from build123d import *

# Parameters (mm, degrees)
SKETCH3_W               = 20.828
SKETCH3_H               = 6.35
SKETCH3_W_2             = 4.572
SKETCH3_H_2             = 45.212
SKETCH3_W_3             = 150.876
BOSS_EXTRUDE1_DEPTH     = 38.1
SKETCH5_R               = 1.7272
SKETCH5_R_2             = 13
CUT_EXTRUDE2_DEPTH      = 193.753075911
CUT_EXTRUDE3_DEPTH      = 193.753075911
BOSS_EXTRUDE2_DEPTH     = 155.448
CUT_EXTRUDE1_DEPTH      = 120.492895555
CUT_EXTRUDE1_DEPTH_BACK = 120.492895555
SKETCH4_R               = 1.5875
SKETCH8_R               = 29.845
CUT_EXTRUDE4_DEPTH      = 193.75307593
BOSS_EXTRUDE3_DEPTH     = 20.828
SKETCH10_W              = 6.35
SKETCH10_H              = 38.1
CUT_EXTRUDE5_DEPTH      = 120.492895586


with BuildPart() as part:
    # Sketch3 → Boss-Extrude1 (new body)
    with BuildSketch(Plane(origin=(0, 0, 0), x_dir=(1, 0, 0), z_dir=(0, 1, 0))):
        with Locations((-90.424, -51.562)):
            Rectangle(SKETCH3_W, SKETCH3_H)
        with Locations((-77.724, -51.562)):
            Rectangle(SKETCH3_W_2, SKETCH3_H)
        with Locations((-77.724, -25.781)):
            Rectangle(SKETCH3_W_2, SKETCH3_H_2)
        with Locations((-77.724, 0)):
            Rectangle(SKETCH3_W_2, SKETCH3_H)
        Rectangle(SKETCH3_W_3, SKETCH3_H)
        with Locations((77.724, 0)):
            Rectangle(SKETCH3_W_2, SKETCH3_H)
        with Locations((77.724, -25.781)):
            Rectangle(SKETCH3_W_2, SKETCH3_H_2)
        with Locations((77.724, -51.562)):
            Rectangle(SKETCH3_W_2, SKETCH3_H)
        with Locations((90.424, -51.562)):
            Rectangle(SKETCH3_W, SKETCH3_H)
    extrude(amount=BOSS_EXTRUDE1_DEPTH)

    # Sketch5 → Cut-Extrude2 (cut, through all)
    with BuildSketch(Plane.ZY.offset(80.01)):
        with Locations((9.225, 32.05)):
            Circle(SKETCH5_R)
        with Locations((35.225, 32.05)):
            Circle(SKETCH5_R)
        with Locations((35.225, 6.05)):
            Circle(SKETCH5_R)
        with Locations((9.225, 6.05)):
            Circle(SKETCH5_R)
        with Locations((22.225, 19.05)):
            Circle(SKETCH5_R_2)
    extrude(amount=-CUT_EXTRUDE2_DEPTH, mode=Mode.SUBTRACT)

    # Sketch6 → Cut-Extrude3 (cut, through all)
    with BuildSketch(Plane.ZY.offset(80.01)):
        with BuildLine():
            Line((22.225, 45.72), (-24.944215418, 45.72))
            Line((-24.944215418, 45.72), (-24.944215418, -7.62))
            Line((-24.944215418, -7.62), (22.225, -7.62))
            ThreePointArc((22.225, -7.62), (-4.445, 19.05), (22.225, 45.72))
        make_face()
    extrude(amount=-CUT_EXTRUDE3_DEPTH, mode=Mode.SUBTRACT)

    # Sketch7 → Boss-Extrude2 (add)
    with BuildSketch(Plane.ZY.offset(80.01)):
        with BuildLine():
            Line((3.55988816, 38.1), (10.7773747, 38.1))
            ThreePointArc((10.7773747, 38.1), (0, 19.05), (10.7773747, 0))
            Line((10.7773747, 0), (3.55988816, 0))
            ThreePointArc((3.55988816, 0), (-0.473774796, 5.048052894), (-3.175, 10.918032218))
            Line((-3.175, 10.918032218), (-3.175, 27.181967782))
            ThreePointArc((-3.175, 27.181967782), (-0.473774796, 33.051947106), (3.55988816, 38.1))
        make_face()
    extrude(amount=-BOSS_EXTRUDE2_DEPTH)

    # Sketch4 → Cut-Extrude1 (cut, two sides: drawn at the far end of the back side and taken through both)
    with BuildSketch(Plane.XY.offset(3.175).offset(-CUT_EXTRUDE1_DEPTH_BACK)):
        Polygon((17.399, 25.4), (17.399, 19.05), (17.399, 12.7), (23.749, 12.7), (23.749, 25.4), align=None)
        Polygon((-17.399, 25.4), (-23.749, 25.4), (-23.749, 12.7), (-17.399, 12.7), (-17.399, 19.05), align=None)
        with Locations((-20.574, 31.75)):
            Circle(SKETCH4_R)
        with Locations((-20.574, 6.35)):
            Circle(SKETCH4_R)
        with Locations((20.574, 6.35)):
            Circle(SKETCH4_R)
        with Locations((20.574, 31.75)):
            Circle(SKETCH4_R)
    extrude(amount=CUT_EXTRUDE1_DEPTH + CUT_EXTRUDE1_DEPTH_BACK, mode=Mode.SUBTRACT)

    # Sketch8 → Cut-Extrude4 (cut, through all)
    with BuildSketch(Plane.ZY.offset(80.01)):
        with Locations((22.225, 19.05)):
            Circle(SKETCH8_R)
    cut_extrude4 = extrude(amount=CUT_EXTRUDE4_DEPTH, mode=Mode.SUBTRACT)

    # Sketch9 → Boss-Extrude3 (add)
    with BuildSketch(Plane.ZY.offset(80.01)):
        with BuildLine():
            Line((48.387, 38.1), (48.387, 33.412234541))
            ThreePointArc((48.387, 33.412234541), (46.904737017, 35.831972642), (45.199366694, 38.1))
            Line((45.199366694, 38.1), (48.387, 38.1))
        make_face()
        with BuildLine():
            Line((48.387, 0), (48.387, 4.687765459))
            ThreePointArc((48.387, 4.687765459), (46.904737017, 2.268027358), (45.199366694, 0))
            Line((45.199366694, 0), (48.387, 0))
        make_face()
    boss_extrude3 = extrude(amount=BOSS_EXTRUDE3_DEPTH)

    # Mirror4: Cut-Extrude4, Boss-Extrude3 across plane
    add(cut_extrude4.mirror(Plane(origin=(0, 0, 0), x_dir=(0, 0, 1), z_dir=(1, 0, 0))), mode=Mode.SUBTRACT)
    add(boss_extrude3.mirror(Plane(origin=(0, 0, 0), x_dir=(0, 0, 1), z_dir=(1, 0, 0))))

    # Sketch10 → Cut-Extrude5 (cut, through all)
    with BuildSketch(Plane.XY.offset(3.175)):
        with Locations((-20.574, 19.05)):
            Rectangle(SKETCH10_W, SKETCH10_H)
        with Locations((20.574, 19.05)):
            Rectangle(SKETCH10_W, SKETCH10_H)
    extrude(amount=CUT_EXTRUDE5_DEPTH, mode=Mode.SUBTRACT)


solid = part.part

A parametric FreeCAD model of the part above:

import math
import FreeCAD as App
import Part
import Sketcher
Q = App.Units.Quantity


def add_polygon(sketch, points):
    """Adds a closed chain of lines whose ends are joined by coincident constraints."""
    first, n = sketch.GeometryCount, len(points)
    for a, b in zip(points, points[1:] + points[:1]):
        sketch.addGeometry(Part.LineSegment(App.Vector(*a, 0), App.Vector(*b, 0)), False)
    for i in range(n):
        sketch.addConstraint(Sketcher.Constraint("Coincident", first + i, 2, first + (i + 1) % n, 1))

doc = App.newDocument("Part")
body = doc.addObject("PartDesign::Body", "Body")

# Sketch on XZ plane
sketch1 = body.newObject("Sketcher::SketchObject", "Sketch")
sketch1.AttachmentSupport = (doc.getObject("XZ_Plane"), [""])
sketch1.MapMode = "FlatFace"
add_polygon(sketch1, [(-101, 48), (-101, 55), (-75, 55), (-75, 3), (75, 3), (75, 55), (101, 55), (101, 48), (80, 48), (80, -3), (-80, -3), (-80, 48)])  # lines 0-11
sketch1.addConstraint(Sketcher.Constraint("Vertical", 0))
sketch1.addConstraint(Sketcher.Constraint("Horizontal", 1))
sketch1.addConstraint(Sketcher.Constraint("Vertical", 2))
sketch1.addConstraint(Sketcher.Constraint("Horizontal", 3))
sketch1.addConstraint(Sketcher.Constraint("Vertical", 4))
sketch1.addConstraint(Sketcher.Constraint("Horizontal", 5))
sketch1.addConstraint(Sketcher.Constraint("Vertical", 6))
sketch1.addConstraint(Sketcher.Constraint("Horizontal", 7))
sketch1.addConstraint(Sketcher.Constraint("Vertical", 8))
sketch1.addConstraint(Sketcher.Constraint("Horizontal", 9))
sketch1.addConstraint(Sketcher.Constraint("Vertical", 10))
sketch1.addConstraint(Sketcher.Constraint("Horizontal", 11))
sketch1.addConstraint(Sketcher.Constraint("Symmetric", 1, 2, 4, 2, -2))
sketch1.addConstraint(Sketcher.Constraint("Symmetric", 7, 2, 10, 2, -2))
sketch1.addConstraint(Sketcher.Constraint("Equal", 1, 5))
sketch1.addConstraint(Sketcher.Constraint("Equal", 4, 8))
sketch1.addConstraint(Sketcher.Constraint("DistanceX", 1, 1, 1, 2, Q("1 in")))
sketch1.addConstraint(Sketcher.Constraint("DistanceX", 9, 2, 9, 1, Q("6.3 in")))
sketch1.addConstraint(Sketcher.Constraint("DistanceX", 3, 1, 3, 2, Q("5.94 in")))
sketch1.addConstraint(Sketcher.Constraint("DistanceY", 0, 1, 0, 2, Q("0.25 in")))
sketch1.addConstraint(Sketcher.Constraint("DistanceY", 2, 2, 2, 1, Q("2.03 in")))
sketch1.addConstraint(Sketcher.Constraint("DistanceY", -1, 1, 0, 2, Q("2.155 in")))
pad1 = body.newObject("PartDesign::Pad", "Pad")
pad1.Profile = sketch1
pad1.Length = Q("1.5 in")
pad1.Reversed = True

# Sketch on YZ plane
sketch2 = body.newObject("Sketcher::SketchObject", "Sketch001")
sketch2.AttachmentSupport = (doc.getObject("YZ_Plane"), [""])
sketch2.MapMode = "FlatFace"
sketch2.AttachmentOffset = App.Placement(App.Vector(0, 0, -3.15 * 25.4), App.Rotation())
sketch2.addGeometry(Part.Circle(App.Vector(32, 9.2, 0), App.Vector(0, 0, 1), 1.7), False)
sketch2.addGeometry(Part.Circle(App.Vector(32, 35.2, 0), App.Vector(0, 0, 1), 1.7), False)
sketch2.addGeometry(Part.Circle(App.Vector(6, 35.2, 0), App.Vector(0, 0, 1), 1.7), False)
sketch2.addGeometry(Part.Circle(App.Vector(6, 9.2, 0), App.Vector(0, 0, 1), 1.7), False)
sketch2.addGeometry(Part.Circle(App.Vector(19.1, 22.2, 0), App.Vector(0, 0, 1), 13), False)
sketch2.addConstraint(Sketcher.Constraint("Equal", 0, 1))
sketch2.addConstraint(Sketcher.Constraint("Equal", 1, 2))
sketch2.addConstraint(Sketcher.Constraint("Equal", 2, 3))
sketch2.addConstraint(Sketcher.Constraint("Horizontal", 1, 3, 2, 3))
sketch2.addConstraint(Sketcher.Constraint("Horizontal", 0, 3, 3, 3))
sketch2.addConstraint(Sketcher.Constraint("Vertical", 0, 3, 1, 3))
sketch2.addConstraint(Sketcher.Constraint("Vertical", 2, 3, 3, 3))
sketch2.addConstraint(Sketcher.Constraint("Diameter", 0, Q("0.136 in")))
sketch2.addConstraint(Sketcher.Constraint("Diameter", 4, 26.0))
sketch2.addConstraint(Sketcher.Constraint("DistanceX", -1, 1, 4, 3, Q("0.75 in")))
sketch2.addConstraint(Sketcher.Constraint("DistanceY", -1, 1, 4, 3, Q("0.875 in")))
sketch2.addConstraint(Sketcher.Constraint("DistanceX", -1, 1, 0, 3, 32.05))
sketch2.addConstraint(Sketcher.Constraint("DistanceY", -1, 1, 0, 3, 9.225))
sketch2.addConstraint(Sketcher.Constraint("DistanceY", -1, 1, 1, 3, 35.225))
sketch2.addConstraint(Sketcher.Constraint("DistanceX", -1, 1, 2, 3, 6.05))
pocket1 = body.newObject("PartDesign::Pocket", "Pocket")
pocket1.Profile = sketch2
pocket1.Type = "ThroughAll"
pocket1.Reversed = True

# Sketch on YZ plane
sketch3 = body.newObject("Sketcher::SketchObject", "Sketch002")
sketch3.AttachmentSupport = (doc.getObject("YZ_Plane"), [""])
sketch3.MapMode = "FlatFace"
sketch3.AttachmentOffset = App.Placement(App.Vector(0, 0, -3.15 * 25.4), App.Rotation())
sketch3.addGeometry(Part.LineSegment(App.Vector(46, 22, 0), App.Vector(46, -25, 0)), False)
sketch3.addGeometry(Part.LineSegment(App.Vector(46, -25, 0), App.Vector(-8, -25, 0)), False)
sketch3.addGeometry(Part.LineSegment(App.Vector(-8, -25, 0), App.Vector(-8, 22, 0)), False)
sketch3.addGeometry(Part.ArcOfCircle(Part.Circle(App.Vector(19, 22, 0), App.Vector(0, 0, 1), 27), math.radians(180), math.radians(360)), False)
sketch3.addConstraint(Sketcher.Constraint("Coincident", 0, 2, 1, 1))
sketch3.addConstraint(Sketcher.Constraint("Coincident", 1, 2, 2, 1))
sketch3.addConstraint(Sketcher.Constraint("Tangent", 2, 2, 3, 1))
sketch3.addConstraint(Sketcher.Constraint("Tangent", 3, 2, 0, 1))
sketch3.addConstraint(Sketcher.Constraint("Vertical", 0))
sketch3.addConstraint(Sketcher.Constraint("Horizontal", 1))
sketch3.addConstraint(Sketcher.Constraint("Vertical", 2))
sketch3.addConstraint(Sketcher.Constraint("Radius", 3, Q("1.05 in")))
sketch3.addConstraint(Sketcher.Constraint("DistanceX", -1, 1, 0, 2, Q("1.8 in")))
sketch3.addConstraint(Sketcher.Constraint("DistanceY", -1, 1, 3, 3, Q("0.875 in")))
sketch3.addConstraint(Sketcher.Constraint("DistanceY", 0, 2, 0, 1, 47.169215))
pocket2 = body.newObject("PartDesign::Pocket", "Pocket001")
pocket2.Profile = sketch3
pocket2.Type = "ThroughAll"
pocket2.Reversed = True

# Sketch on YZ plane
sketch4 = body.newObject("Sketcher::SketchObject", "Sketch003")
sketch4.AttachmentSupport = (doc.getObject("YZ_Plane"), [""])
sketch4.MapMode = "FlatFace"
sketch4.AttachmentOffset = App.Placement(App.Vector(0, 0, -3.15 * 25.4), App.Rotation())
sketch4.addGeometry(Part.LineSegment(App.Vector(38, 11, 0), App.Vector(38, 4, 0)), False)
sketch4.addGeometry(Part.ArcOfCircle(Part.Circle(App.Vector(19, 22, 0), App.Vector(0, 0, 1), 27), math.radians(-72), math.radians(-44)), False)
sketch4.addGeometry(Part.LineSegment(App.Vector(27, -3, 0), App.Vector(11, -3, 0)), False)
sketch4.addGeometry(Part.ArcOfCircle(Part.Circle(App.Vector(19, 22, 0), App.Vector(0, 0, 1), 27), math.radians(-136), math.radians(-108)), False)
sketch4.addGeometry(Part.LineSegment(App.Vector(0, 4, 0), App.Vector(0, 11, 0)), False)
sketch4.addGeometry(Part.ArcOfCircle(Part.Circle(App.Vector(19, 22, 0), App.Vector(0, 0, 1), 22), math.radians(-149), math.radians(-31)), False)
sketch4.addConstraint(Sketcher.Constraint("Coincident", 0, 2, 1, 2))
sketch4.addConstraint(Sketcher.Constraint("Coincident", 1, 1, 2, 1))
sketch4.addConstraint(Sketcher.Constraint("Coincident", 2, 2, 3, 2))
sketch4.addConstraint(Sketcher.Constraint("Coincident", 3, 1, 4, 1))
sketch4.addConstraint(Sketcher.Constraint("Coincident", 4, 2, 5, 1))
sketch4.addConstraint(Sketcher.Constraint("Coincident", 5, 2, 0, 1))
sketch4.addConstraint(Sketcher.Constraint("Vertical", 0))
sketch4.addConstraint(Sketcher.Constraint("Horizontal", 2))
sketch4.addConstraint(Sketcher.Constraint("Vertical", 4))
sketch4.addConstraint(Sketcher.Constraint("Coincident", 3, 3, 1, 3))
sketch4.addConstraint(Sketcher.Constraint("Coincident", 5, 3, 1, 3))
sketch4.addConstraint(Sketcher.Constraint("Equal", 1, 3))
sketch4.addConstraint(Sketcher.Constraint("PointOnObject", 3, 1, -2))
sketch4.addConstraint(Sketcher.Constraint("Horizontal", 0, 2, 3, 1))
sketch4.addConstraint(Sketcher.Constraint("Radius", 1, Q("1.05 in")))
sketch4.addConstraint(Sketcher.Constraint("Radius", 5, Q("0.875 in")))
sketch4.addConstraint(Sketcher.Constraint("DistanceY", 1, 1, 5, 3, Q("1 in")))
sketch4.addConstraint(Sketcher.Constraint("DistanceX", -1, 1, 0, 2, Q("1.5 in")))
sketch4.addConstraint(Sketcher.Constraint("DistanceY", -1, 1, 1, 3, Q("0.875 in")))
pad2 = body.newObject("PartDesign::Pad", "Pad001")
pad2.Profile = sketch4
pad2.Length = Q("6.12 in")

# Sketch on XY plane
sketch5 = body.newObject("Sketcher::SketchObject", "Sketch004")
sketch5.AttachmentSupport = (doc.getObject("XY_Plane"), [""])
sketch5.MapMode = "FlatFace"
sketch5.AttachmentOffset = App.Placement(App.Vector(0, 0, 0.125 * 25.4), App.Rotation())
add_polygon(sketch5, [(17.4, 25.4), (17.4, 12.7), (23.7, 12.7), (23.7, 25.4)])  # lines 0-3
add_polygon(sketch5, [(-17.4, 25.4), (-23.7, 25.4), (-23.7, 12.7), (-17.4, 12.7)])  # lines 4-7
sketch5.addGeometry(Part.Circle(App.Vector(-20.6, 31.8, 0), App.Vector(0, 0, 1), 1.6), False)  # 8
sketch5.addGeometry(Part.Circle(App.Vector(-20.6, 6.3, 0), App.Vector(0, 0, 1), 1.6), False)  # 9
sketch5.addGeometry(Part.Circle(App.Vector(20.6, 6.3, 0), App.Vector(0, 0, 1), 1.6), False)  # 10
sketch5.addGeometry(Part.Circle(App.Vector(20.6, 31.8, 0), App.Vector(0, 0, 1), 1.6), False)  # 11
sketch5.addConstraint(Sketcher.Constraint("Vertical", 0))
sketch5.addConstraint(Sketcher.Constraint("Horizontal", 1))
sketch5.addConstraint(Sketcher.Constraint("Vertical", 2))
sketch5.addConstraint(Sketcher.Constraint("Horizontal", 3))
sketch5.addConstraint(Sketcher.Constraint("Horizontal", 4))
sketch5.addConstraint(Sketcher.Constraint("Vertical", 5))
sketch5.addConstraint(Sketcher.Constraint("Horizontal", 6))
sketch5.addConstraint(Sketcher.Constraint("Vertical", 7))
sketch5.addConstraint(Sketcher.Constraint("Equal", 8, 9))
sketch5.addConstraint(Sketcher.Constraint("Equal", 9, 10))
sketch5.addConstraint(Sketcher.Constraint("Equal", 10, 11))
sketch5.addConstraint(Sketcher.Constraint("Symmetric", 9, 3, 10, 3, -2))
sketch5.addConstraint(Sketcher.Constraint("Symmetric", 8, 3, 11, 3, -2))
sketch5.addConstraint(Sketcher.Constraint("Symmetric", 2, 2, 4, 2, -2))
sketch5.addConstraint(Sketcher.Constraint("Symmetric", 0, 2, 6, 2, -2))
sketch5.addConstraint(Sketcher.Constraint("Vertical", 8, 3, 9, 3))
sketch5.addConstraint(Sketcher.Constraint("Diameter", 8, Q("0.125 in")))
sketch5.addConstraint(Sketcher.Constraint("DistanceY", 0, 2, 0, 1, Q("0.5 in")))
sketch5.addConstraint(Sketcher.Constraint("DistanceY", -1, 1, 2, 2, Q("1 in")))
sketch5.addConstraint(Sketcher.Constraint("DistanceY", 9, 3, 8, 3, Q("1 in")))
sketch5.addConstraint(Sketcher.Constraint("DistanceX", 1, 1, 1, 2, Q("0.25 in")))
sketch5.addConstraint(Sketcher.Constraint("DistanceX", 8, 3, -1, 1, Q("0.81 in")))
sketch5.addConstraint(Sketcher.Constraint("DistanceY", -1, 1, 8, 3, Q("1.25 in")))
sketch5.addConstraint(Sketcher.Constraint("DistanceX", 4, 2, 3, 2, Q("1.62 in")))
pocket3 = body.newObject("PartDesign::Pocket", "Pocket002")
pocket3.Profile = sketch5
pocket3.Type = "ThroughAll"
pocket3.Midplane = True

# Sketch on YZ plane
sketch6 = body.newObject("Sketcher::SketchObject", "Sketch005")
sketch6.AttachmentSupport = (doc.getObject("YZ_Plane"), [""])
sketch6.MapMode = "FlatFace"
sketch6.AttachmentOffset = App.Placement(App.Vector(0, 0, -3.15 * 25.4), App.Rotation())
sketch6.addGeometry(Part.Circle(App.Vector(19, 22, 0), App.Vector(0, 0, 1), 30), False)
sketch6.addConstraint(Sketcher.Constraint("Diameter", 0, Q("2.35 in")))
sketch6.addConstraint(Sketcher.Constraint("DistanceX", -1, 1, 0, 3, Q("0.75 in")))
sketch6.addConstraint(Sketcher.Constraint("DistanceY", -1, 1, 0, 3, Q("0.875 in")))
pocket4 = body.newObject("PartDesign::Pocket", "Pocket003")
pocket4.Profile = sketch6
pocket4.Type = "ThroughAll"

# Sketch on YZ plane
sketch7 = body.newObject("Sketcher::SketchObject", "Sketch006")
sketch7.AttachmentSupport = (doc.getObject("YZ_Plane"), [""])
sketch7.MapMode = "FlatFace"
sketch7.AttachmentOffset = App.Placement(App.Vector(0, 0, -3.15 * 25.4), App.Rotation())
sketch7.addGeometry(Part.LineSegment(App.Vector(33.4, 48.4, 0), App.Vector(38.1, 48.4, 0)), False)
sketch7.addGeometry(Part.LineSegment(App.Vector(38.1, 48.4, 0), App.Vector(38.1, 45.2, 0)), False)
sketch7.addGeometry(Part.ArcOfCircle(Part.Circle(App.Vector(19, 22.2, 0), App.Vector(0, 0, 1), 29.8), math.radians(50.33), math.radians(61.23)), False)
sketch7.addGeometry(Part.LineSegment(App.Vector(0, 48.4, 0), App.Vector(4.7, 48.4, 0)), False)
sketch7.addGeometry(Part.ArcOfCircle(Part.Circle(App.Vector(19.1, 22.2, 0), App.Vector(0, 0, 1), 29.8), math.radians(118.77), math.radians(129.67)), False)
sketch7.addGeometry(Part.LineSegment(App.Vector(0, 45.2, 0), App.Vector(0, 48.4, 0)), False)
sketch7.addConstraint(Sketcher.Constraint("Coincident", 0, 2, 1, 1))
sketch7.addConstraint(Sketcher.Constraint("Coincident", 1, 2, 2, 1))
sketch7.addConstraint(Sketcher.Constraint("Coincident", 2, 2, 0, 1))
sketch7.addConstraint(Sketcher.Constraint("Coincident", 3, 2, 4, 1))
sketch7.addConstraint(Sketcher.Constraint("Coincident", 4, 2, 5, 1))
sketch7.addConstraint(Sketcher.Constraint("Coincident", 5, 2, 3, 1))
sketch7.addConstraint(Sketcher.Constraint("Horizontal", 0))
sketch7.addConstraint(Sketcher.Constraint("Vertical", 1))
sketch7.addConstraint(Sketcher.Constraint("Horizontal", 3))
sketch7.addConstraint(Sketcher.Constraint("Vertical", 5))
sketch7.addConstraint(Sketcher.Constraint("Coincident", 4, 3, 2, 3))
sketch7.addConstraint(Sketcher.Constraint("Equal", 2, 4))
sketch7.addConstraint(Sketcher.Constraint("PointOnObject", 4, 2, -2))
sketch7.addConstraint(Sketcher.Constraint("Horizontal", 2, 2, 3, 2))
sketch7.addConstraint(Sketcher.Constraint("Horizontal", 1, 2, 4, 2))
sketch7.addConstraint(Sketcher.Constraint("Radius", 2, Q("1.175 in")))
sketch7.addConstraint(Sketcher.Constraint("DistanceX", -1, 1, 0, 2, Q("1.5 in")))
sketch7.addConstraint(Sketcher.Constraint("DistanceY", 4, 3, 0, 2, Q("1.03 in")))
sketch7.addConstraint(Sketcher.Constraint("DistanceY", -1, 1, 2, 3, Q("0.875 in")))
pad3 = body.newObject("PartDesign::Pad", "Pad002")
pad3.Profile = sketch7
pad3.Length = Q("0.82 in")
pad3.Reversed = True
doc.recompute()

mirrored = body.newObject("PartDesign::Mirrored", "Mirrored")
mirrored.Originals = [pocket4, pad3]
mirrored.MirrorPlane = (doc.getObject("YZ_Plane"), [""])
body.Tip = mirrored

# Sketch on XY plane
sketch8 = body.newObject("Sketcher::SketchObject", "Sketch007")
sketch8.AttachmentSupport = (doc.getObject("XY_Plane"), [""])
sketch8.MapMode = "FlatFace"
sketch8.AttachmentOffset = App.Placement(App.Vector(0, 0, 0.125 * 25.4), App.Rotation())
add_polygon(sketch8, [(-23.749, 38.1), (-23.749, 0), (-17.399, 0), (-17.399, 38.1)])  # lines 0-3
add_polygon(sketch8, [(17.399, 38.1), (17.399, 0), (23.749, 0), (23.749, 38.1)])  # lines 4-7
sketch8.addConstraint(Sketcher.Constraint("Vertical", 0))
sketch8.addConstraint(Sketcher.Constraint("Horizontal", 1))
sketch8.addConstraint(Sketcher.Constraint("Vertical", 2))
sketch8.addConstraint(Sketcher.Constraint("Horizontal", 3))
sketch8.addConstraint(Sketcher.Constraint("Vertical", 4))
sketch8.addConstraint(Sketcher.Constraint("Horizontal", 5))
sketch8.addConstraint(Sketcher.Constraint("Vertical", 6))
sketch8.addConstraint(Sketcher.Constraint("Horizontal", 7))
sketch8.addConstraint(Sketcher.Constraint("Symmetric", 1, 2, 4, 2, -1, 1))
sketch8.addConstraint(Sketcher.Constraint("Symmetric", 0, 2, 5, 2, -2))
sketch8.addConstraint(Sketcher.Constraint("Horizontal", 3, 2, 6, 2))
sketch8.addConstraint(Sketcher.Constraint("DistanceY", 0, 2, 0, 1, Q("1.5 in")))
sketch8.addConstraint(Sketcher.Constraint("DistanceX", 1, 1, 1, 2, Q("0.25 in")))
sketch8.addConstraint(Sketcher.Constraint("DistanceX", 1, 2, 4, 2, Q("1.37 in")))
pocket5 = body.newObject("PartDesign::Pocket", "Pocket004")
pocket5.Profile = sketch8
pocket5.Type = "ThroughAll"
pocket5.Reversed = True

doc.recompute()
